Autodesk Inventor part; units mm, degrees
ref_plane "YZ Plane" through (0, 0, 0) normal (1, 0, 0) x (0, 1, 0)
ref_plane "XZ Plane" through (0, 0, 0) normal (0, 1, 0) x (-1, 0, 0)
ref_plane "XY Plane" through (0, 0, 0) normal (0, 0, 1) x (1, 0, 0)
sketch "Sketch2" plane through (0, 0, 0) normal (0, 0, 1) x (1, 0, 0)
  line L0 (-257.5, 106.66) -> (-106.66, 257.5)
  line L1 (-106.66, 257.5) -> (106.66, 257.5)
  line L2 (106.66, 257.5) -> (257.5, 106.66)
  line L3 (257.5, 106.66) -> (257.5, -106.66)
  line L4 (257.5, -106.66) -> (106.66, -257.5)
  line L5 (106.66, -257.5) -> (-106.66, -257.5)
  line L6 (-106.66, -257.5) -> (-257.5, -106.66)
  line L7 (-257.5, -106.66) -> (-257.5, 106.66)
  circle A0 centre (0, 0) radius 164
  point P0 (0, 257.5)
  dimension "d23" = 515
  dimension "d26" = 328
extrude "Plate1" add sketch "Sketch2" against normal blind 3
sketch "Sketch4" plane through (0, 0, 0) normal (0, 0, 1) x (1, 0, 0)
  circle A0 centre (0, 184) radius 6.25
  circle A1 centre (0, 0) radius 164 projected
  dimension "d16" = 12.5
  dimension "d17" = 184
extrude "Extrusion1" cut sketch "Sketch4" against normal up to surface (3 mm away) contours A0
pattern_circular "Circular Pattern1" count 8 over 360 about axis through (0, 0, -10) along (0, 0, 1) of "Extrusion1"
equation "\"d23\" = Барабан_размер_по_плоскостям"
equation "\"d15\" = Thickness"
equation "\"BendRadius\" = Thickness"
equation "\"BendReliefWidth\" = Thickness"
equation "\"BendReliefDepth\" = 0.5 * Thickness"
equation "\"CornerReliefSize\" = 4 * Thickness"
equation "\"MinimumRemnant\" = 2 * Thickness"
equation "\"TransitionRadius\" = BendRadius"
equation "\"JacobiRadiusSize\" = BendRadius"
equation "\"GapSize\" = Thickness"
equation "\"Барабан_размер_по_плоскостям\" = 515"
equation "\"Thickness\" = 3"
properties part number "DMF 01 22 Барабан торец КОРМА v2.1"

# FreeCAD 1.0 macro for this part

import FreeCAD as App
import Part
import Sketcher

V = App.Vector
Q = App.Units.Quantity

doc = App.newDocument("Part")
body = doc.addObject("PartDesign::Body", "Body")

sketch1 = body.newObject("Sketcher::SketchObject", "Sketch")
sketch1.AttachmentSupport = (doc.getObject("XY_Plane"), [""])
sketch1.MapMode = "FlatFace"
sketch1.addGeometry([
    Part.LineSegment(V(-107, 258, 0), V(-258, 107, 0)),
    Part.LineSegment(V(-258, 107, 0), V(-258, -107, 0)),
    Part.LineSegment(V(-258, -107, 0), V(-107, -258, 0)),
    Part.LineSegment(V(-107, -258, 0), V(107, -258, 0)),
    Part.LineSegment(V(107, -258, 0), V(258, -107, 0)),
    Part.LineSegment(V(258, -107, 0), V(258, 107, 0)),
    Part.LineSegment(V(258, 107, 0), V(107, 258, 0)),
    Part.LineSegment(V(107, 258, 0), V(-107, 258, 0)),
    Part.Circle(V(0, 0, 0), V(0, 0, 1), 164),
], False)
sketch1.addConstraint([
    Sketcher.Constraint("Coincident", 0, 2, 1, 1),
    Sketcher.Constraint("Coincident", 1, 2, 2, 1),
    Sketcher.Constraint("Coincident", 2, 2, 3, 1),
    Sketcher.Constraint("Coincident", 3, 2, 4, 1),
    Sketcher.Constraint("Coincident", 4, 2, 5, 1),
    Sketcher.Constraint("Coincident", 5, 2, 6, 1),
    Sketcher.Constraint("Coincident", 6, 2, 7, 1),
    Sketcher.Constraint("Coincident", 7, 2, 0, 1),
    Sketcher.Constraint("Vertical", 1),
    Sketcher.Constraint("Horizontal", 3),
    Sketcher.Constraint("Vertical", 5),
    Sketcher.Constraint("Horizontal", 7),
    Sketcher.Constraint("Coincident", 8, 3, -1, 1),
    Sketcher.Constraint("Symmetric", 0, 2, 4, 2, -1, 1),
    Sketcher.Constraint("Symmetric", 2, 2, 6, 2, -1, 1),
    Sketcher.Constraint("Perpendicular", 0, 2),
    Sketcher.Constraint("Perpendicular", 2, 4),
    Sketcher.Constraint("Perpendicular", 4, 6),
    Sketcher.Constraint("Horizontal", 1, 2, 4, 2),
    Sketcher.Constraint("Vertical", 3, 2, 6, 2),
    Sketcher.Constraint("Equal", 7, 1),
    Sketcher.Constraint("Diameter", 8, Q("328 mm")),
    Sketcher.Constraint("DistanceX", 1, 2, 4, 2, Q("515 mm")),
    Sketcher.Constraint("DistanceX", 3, 1, 3, 2, Q("213.32 mm")),
])
pad1 = body.newObject("PartDesign::Pad", "Pad")
pad1.Profile = sketch1
pad1.Length = 3
pad1.Reversed = True

sketch2 = body.newObject("Sketcher::SketchObject", "Sketch001")
sketch2.AttachmentSupport = (doc.getObject("XY_Plane"), [""])
sketch2.MapMode = "FlatFace"
sketch2.addGeometry(Part.Circle(V(0, 184, 0), V(0, 0, 1), 6), False)
sketch2.addConstraint([
    Sketcher.Constraint("PointOnObject", 0, 3, -2),
    Sketcher.Constraint("Diameter", 0, Q("12.5 mm")),
    Sketcher.Constraint("DistanceY", -1, 1, 0, 3, Q("184 mm")),
])
pocket1 = body.newObject("PartDesign::Pocket", "Pocket")
pocket1.Profile = sketch2
pocket1.Length = 3
doc.recompute()

polarpattern = body.newObject("PartDesign::PolarPattern", "PolarPattern")
polarpattern.Originals = [pocket1]
polarpattern.Axis = (doc.getObject("Z_Axis"), [""])
polarpattern.Angle = 360
polarpattern.Occurrences = 8
body.Tip = polarpattern

doc.recompute()
